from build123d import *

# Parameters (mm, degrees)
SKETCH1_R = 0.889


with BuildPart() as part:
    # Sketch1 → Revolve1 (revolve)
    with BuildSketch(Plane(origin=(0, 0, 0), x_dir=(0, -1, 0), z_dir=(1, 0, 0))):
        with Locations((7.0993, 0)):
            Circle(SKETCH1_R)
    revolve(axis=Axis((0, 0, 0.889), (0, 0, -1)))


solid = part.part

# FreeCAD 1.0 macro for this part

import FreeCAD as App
import Part
import Sketcher

V = App.Vector
Q = App.Units.Quantity

doc = App.newDocument("Part")
body = doc.addObject("PartDesign::Body", "Body")

sketch1 = body.newObject("Sketcher::SketchObject", "Sketch")
sketch1.AttachmentSupport = (doc.getObject("YZ_Plane"), [""])
sketch1.MapMode = "FlatFace"
sketch1.addGeometry(Part.Circle(V(-7.1, 0, 0), V(0, 0, 1), 0.9), False)
sketch1.addConstraint([
    Sketcher.Constraint("PointOnObject", 0, 3, -1),
    Sketcher.Constraint("Diameter", 0, Q("0.07 in")),
    Sketcher.Constraint("DistanceX", 0, 3, -1, 1, Q("0.2795 in")),
])
revolution = body.newObject("PartDesign::Revolution", "Revolution")
revolution.Profile = sketch1
revolution.ReferenceAxis = (sketch1, ["V_Axis"])
revolution.Angle = 360

doc.recompute()
